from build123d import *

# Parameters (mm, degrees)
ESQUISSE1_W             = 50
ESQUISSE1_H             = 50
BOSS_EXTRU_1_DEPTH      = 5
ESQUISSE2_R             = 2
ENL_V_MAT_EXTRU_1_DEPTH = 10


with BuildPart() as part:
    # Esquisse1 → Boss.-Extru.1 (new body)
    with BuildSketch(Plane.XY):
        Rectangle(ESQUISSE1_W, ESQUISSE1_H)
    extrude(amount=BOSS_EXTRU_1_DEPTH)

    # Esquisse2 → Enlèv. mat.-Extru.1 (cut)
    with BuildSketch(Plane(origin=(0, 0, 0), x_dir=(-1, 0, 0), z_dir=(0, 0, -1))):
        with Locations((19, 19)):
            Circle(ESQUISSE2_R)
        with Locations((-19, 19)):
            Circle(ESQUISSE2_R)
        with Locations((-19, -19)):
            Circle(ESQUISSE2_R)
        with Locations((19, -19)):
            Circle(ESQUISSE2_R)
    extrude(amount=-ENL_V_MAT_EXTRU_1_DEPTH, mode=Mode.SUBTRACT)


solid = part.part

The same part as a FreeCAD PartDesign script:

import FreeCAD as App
import Part
import Sketcher

V = App.Vector
Q = App.Units.Quantity


def add_polygon(sketch, points):
    """Adds a closed chain of lines whose ends are joined by coincident constraints."""
    first, n = sketch.GeometryCount, len(points)
    for a, b in zip(points, points[1:] + points[:1]):
        sketch.addGeometry(Part.LineSegment(App.Vector(*a, 0), App.Vector(*b, 0)), False)
    for i in range(n):
        sketch.addConstraint(Sketcher.Constraint("Coincident", first + i, 2, first + (i + 1) % n, 1))

doc = App.newDocument("Part")
body = doc.addObject("PartDesign::Body", "Body")

# Sketch on XY plane
sketch1 = body.newObject("Sketcher::SketchObject", "Sketch")
sketch1.AttachmentSupport = (doc.getObject("XY_Plane"), [""])
sketch1.MapMode = "FlatFace"
add_polygon(sketch1, [(-25, 25), (-25, -25), (25, -25), (25, 25)])  # lines 0-3
sketch1.addConstraint(Sketcher.Constraint("Vertical", 0))
sketch1.addConstraint(Sketcher.Constraint("Horizontal", 1))
sketch1.addConstraint(Sketcher.Constraint("Vertical", 2))
sketch1.addConstraint(Sketcher.Constraint("Horizontal", 3))
sketch1.addConstraint(Sketcher.Constraint("Symmetric", 0, 2, 2, 2, -1, 1))
sketch1.addConstraint(Sketcher.Constraint("Equal", 3, 0))
sketch1.addConstraint(Sketcher.Constraint("DistanceX", 1, 1, 1, 2, Q("50 mm")))
pad1 = body.newObject("PartDesign::Pad", "Pad")
pad1.Profile = sketch1
pad1.Length = 5

# Sketch on XY plane
sketch2 = body.newObject("Sketcher::SketchObject", "Sketch001")
sketch2.AttachmentSupport = (doc.getObject("XY_Plane"), [""])
sketch2.MapMode = "FlatFace"
sketch2.addGeometry(Part.Circle(V(-19, 19, 0), V(0, 0, 1), 2), False)
sketch2.addGeometry(Part.Circle(V(19, 19, 0), V(0, 0, 1), 2), False)
sketch2.addGeometry(Part.Circle(V(19, -19, 0), V(0, 0, 1), 2), False)
sketch2.addGeometry(Part.Circle(V(-19, -19, 0), V(0, 0, 1), 2), False)
sketch2.addConstraint(Sketcher.Constraint("Equal", 0, 1))
sketch2.addConstraint(Sketcher.Constraint("Equal", 1, 2))
sketch2.addConstraint(Sketcher.Constraint("Equal", 2, 3))
sketch2.addConstraint(Sketcher.Constraint("Symmetric", 0, 3, 2, 3, -1, 1))
sketch2.addConstraint(Sketcher.Constraint("Symmetric", 1, 3, 3, 3, -1, 1))
sketch2.addConstraint(Sketcher.Constraint("Symmetric", 0, 3, 1, 3, -2))
sketch2.addConstraint(Sketcher.Constraint("Diameter", 0, Q("4 mm")))
sketch2.addConstraint(Sketcher.Constraint("DistanceX", 0, 3, -1, 1, Q("19 mm")))
sketch2.addConstraint(Sketcher.Constraint("DistanceY", -1, 1, 0, 3, Q("19 mm")))
pocket1 = body.newObject("PartDesign::Pocket", "Pocket")
pocket1.Profile = sketch2
pocket1.Length = 10
pocket1.Reversed = True

doc.recompute()
